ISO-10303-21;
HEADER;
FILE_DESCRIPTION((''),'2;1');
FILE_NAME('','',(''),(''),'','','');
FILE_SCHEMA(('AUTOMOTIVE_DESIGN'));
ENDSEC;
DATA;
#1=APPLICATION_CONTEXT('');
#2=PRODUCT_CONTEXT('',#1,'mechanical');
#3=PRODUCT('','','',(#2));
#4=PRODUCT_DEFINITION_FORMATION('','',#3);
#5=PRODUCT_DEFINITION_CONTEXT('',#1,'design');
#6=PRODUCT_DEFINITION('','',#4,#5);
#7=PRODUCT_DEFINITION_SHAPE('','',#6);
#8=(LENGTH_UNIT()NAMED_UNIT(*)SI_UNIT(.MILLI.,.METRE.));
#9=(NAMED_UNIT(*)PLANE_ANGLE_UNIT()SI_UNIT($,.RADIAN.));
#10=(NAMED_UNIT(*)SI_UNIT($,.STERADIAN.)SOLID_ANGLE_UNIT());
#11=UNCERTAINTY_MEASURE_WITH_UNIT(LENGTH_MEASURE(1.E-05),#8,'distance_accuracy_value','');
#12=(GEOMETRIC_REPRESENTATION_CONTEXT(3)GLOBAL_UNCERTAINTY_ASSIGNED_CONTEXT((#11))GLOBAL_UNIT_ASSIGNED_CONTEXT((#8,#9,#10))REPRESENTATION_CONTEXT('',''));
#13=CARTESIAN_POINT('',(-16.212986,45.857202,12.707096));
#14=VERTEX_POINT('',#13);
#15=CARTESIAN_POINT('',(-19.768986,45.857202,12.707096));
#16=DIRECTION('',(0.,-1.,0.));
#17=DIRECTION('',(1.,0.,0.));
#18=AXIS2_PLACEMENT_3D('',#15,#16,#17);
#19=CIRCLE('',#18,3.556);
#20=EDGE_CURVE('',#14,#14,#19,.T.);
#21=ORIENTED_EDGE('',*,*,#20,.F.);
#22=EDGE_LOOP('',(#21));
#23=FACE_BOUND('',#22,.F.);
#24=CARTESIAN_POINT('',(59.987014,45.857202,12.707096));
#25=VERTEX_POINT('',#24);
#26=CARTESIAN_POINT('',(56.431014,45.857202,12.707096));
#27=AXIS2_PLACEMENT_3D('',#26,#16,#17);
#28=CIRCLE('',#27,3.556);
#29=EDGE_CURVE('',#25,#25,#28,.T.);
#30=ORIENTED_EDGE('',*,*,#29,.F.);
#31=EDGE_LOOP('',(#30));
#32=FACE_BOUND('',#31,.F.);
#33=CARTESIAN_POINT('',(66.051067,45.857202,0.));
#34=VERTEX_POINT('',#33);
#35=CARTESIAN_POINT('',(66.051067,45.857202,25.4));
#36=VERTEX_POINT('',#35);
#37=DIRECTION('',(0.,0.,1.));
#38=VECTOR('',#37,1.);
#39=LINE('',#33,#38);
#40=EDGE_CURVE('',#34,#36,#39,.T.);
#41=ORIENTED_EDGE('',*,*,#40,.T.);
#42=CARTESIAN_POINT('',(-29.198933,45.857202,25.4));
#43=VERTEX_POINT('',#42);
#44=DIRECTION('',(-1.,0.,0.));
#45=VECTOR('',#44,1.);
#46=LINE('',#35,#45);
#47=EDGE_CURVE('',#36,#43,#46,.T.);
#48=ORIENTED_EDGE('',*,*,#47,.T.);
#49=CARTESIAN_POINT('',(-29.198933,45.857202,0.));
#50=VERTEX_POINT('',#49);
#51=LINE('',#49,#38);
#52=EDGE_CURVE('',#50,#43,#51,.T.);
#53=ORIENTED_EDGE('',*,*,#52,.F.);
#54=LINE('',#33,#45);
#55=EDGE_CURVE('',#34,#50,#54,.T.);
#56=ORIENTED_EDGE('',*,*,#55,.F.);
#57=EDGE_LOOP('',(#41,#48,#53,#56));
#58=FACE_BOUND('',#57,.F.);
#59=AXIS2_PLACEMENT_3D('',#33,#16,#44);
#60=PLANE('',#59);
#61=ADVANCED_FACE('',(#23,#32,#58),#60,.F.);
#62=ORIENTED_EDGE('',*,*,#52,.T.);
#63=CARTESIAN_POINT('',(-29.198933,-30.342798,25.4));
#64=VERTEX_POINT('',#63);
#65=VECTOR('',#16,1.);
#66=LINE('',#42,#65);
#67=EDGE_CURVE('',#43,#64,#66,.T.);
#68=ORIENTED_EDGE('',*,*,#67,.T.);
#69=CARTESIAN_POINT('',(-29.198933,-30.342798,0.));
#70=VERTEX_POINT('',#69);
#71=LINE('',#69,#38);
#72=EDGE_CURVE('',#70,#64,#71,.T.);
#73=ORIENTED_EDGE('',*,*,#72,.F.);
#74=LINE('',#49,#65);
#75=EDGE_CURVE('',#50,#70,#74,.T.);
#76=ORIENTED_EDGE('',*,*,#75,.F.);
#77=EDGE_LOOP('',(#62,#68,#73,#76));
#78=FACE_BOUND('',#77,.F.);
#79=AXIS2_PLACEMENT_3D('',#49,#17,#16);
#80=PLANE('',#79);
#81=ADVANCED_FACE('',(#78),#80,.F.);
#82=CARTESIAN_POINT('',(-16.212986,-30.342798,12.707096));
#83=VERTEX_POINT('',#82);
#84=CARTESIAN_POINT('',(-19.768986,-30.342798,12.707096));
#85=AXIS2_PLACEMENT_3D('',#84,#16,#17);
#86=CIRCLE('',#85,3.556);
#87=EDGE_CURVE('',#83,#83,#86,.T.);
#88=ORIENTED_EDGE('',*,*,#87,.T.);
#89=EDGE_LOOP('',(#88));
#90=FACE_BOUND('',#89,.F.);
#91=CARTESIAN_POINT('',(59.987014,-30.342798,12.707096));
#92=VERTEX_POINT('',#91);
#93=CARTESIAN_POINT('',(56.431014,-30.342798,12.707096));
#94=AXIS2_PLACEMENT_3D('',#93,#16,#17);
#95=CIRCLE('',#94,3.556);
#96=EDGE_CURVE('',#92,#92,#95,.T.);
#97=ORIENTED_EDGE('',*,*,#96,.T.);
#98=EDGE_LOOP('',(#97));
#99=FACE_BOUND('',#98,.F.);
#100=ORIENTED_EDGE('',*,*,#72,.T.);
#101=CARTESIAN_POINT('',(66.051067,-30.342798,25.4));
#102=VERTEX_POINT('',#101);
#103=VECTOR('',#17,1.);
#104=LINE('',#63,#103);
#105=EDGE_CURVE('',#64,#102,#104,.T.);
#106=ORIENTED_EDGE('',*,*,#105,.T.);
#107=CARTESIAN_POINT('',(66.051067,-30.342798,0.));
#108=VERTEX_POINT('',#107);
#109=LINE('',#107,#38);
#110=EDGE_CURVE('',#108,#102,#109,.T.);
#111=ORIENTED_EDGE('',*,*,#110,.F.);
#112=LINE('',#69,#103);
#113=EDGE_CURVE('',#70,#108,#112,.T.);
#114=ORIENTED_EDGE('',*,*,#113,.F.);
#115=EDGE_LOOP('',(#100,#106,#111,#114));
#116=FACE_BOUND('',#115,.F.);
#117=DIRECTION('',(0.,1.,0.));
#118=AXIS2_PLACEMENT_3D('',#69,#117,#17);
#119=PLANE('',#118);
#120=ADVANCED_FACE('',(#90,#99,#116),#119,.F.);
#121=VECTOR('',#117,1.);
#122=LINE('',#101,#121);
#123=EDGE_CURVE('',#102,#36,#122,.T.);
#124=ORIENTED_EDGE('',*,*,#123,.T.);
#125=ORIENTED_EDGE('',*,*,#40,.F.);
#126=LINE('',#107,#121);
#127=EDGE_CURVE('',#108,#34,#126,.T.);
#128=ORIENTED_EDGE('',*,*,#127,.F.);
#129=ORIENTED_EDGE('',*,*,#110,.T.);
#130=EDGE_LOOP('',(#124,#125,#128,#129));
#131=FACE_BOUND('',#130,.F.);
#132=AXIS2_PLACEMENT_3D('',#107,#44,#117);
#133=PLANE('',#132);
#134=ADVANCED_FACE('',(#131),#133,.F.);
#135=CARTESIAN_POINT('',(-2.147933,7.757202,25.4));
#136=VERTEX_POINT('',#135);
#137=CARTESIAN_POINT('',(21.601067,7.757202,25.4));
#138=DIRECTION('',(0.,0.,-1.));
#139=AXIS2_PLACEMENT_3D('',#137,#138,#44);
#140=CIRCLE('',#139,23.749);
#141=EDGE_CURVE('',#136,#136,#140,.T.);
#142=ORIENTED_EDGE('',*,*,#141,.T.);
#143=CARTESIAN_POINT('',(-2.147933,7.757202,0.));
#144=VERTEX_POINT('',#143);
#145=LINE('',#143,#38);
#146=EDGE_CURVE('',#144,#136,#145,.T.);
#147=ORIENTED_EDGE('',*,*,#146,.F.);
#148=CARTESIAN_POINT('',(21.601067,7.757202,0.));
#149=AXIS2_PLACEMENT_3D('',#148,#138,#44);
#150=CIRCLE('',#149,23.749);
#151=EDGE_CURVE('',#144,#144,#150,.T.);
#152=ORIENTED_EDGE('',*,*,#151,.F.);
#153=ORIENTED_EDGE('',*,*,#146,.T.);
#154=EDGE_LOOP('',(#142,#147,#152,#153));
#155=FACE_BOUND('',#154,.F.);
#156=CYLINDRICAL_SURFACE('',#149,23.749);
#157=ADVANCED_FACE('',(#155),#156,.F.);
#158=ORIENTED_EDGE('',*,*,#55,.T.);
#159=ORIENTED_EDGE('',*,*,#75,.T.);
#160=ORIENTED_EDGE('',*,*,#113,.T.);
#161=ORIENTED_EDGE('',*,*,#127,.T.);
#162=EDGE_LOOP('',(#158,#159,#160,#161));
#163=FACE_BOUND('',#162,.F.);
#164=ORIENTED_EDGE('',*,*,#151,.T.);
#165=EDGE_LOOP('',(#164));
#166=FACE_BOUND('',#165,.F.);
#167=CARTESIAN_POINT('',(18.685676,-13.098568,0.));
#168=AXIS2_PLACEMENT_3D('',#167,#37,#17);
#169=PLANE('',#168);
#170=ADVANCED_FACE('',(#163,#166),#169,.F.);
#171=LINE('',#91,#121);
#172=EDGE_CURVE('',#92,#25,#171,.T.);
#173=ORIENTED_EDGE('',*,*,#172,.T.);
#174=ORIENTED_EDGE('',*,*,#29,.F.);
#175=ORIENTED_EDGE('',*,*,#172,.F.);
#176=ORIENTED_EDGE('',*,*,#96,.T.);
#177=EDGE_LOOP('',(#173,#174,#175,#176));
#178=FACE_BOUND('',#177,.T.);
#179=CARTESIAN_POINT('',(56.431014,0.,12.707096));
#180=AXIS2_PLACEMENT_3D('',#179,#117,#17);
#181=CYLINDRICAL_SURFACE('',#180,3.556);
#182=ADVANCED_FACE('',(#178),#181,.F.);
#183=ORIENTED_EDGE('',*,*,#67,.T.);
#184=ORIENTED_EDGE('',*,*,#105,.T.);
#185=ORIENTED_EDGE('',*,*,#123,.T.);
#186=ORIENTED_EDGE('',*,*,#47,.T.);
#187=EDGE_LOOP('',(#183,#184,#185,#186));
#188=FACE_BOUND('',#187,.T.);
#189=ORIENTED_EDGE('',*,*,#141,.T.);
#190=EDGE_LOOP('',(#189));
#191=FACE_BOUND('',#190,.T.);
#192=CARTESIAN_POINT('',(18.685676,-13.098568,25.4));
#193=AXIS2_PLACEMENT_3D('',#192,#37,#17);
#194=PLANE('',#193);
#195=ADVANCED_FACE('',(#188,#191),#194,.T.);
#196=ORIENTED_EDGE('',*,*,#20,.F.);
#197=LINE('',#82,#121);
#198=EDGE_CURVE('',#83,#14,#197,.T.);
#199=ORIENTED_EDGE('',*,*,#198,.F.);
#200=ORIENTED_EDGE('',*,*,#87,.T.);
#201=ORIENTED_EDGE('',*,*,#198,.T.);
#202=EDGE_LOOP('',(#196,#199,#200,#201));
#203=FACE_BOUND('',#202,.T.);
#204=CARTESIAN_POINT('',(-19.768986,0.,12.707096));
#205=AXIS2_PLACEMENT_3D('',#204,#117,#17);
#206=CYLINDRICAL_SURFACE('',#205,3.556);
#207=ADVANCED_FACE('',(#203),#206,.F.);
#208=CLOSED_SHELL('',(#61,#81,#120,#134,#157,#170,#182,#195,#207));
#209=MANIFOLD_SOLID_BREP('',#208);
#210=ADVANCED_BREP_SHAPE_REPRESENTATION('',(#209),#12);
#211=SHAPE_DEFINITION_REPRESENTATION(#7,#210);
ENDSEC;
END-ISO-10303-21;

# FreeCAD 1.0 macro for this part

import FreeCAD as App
import Part
import Sketcher
Q = App.Units.Quantity

doc = App.newDocument("Part")
body = doc.addObject("PartDesign::Body", "Body")

sketch1 = body.newObject("Sketcher::SketchObject", "Sketch")
sketch1.AttachmentSupport = (doc.getObject("XY_Plane"), [""])
sketch1.MapMode = "FlatFace"
sketch1.addGeometry([
    Part.LineSegment(App.Vector(-29, -30, 0), App.Vector(66, -30, 0)),
    Part.LineSegment(App.Vector(66, -30, 0), App.Vector(66, 46, 0)),
    Part.LineSegment(App.Vector(66, 46, 0), App.Vector(-29, 46, 0)),
    Part.LineSegment(App.Vector(-29, 46, 0), App.Vector(-29, -30, 0)),
    Part.Circle(App.Vector(22, 8, 0), App.Vector(0, 0, 1), 24),
], False)
sketch1.addConstraint([
    Sketcher.Constraint("Coincident", 0, 2, 1, 1),
    Sketcher.Constraint("Coincident", 1, 2, 2, 1),
    Sketcher.Constraint("Coincident", 2, 2, 3, 1),
    Sketcher.Constraint("Coincident", 3, 2, 0, 1),
    Sketcher.Constraint("Horizontal", 0),
    Sketcher.Constraint("Vertical", 1),
    Sketcher.Constraint("Horizontal", 2),
    Sketcher.Constraint("Vertical", 3),
    Sketcher.Constraint("Diameter", 4, Q("1.87 in")),
    Sketcher.Constraint("DistanceY", 1, 1, 1, 2, Q("3 in")),
    Sketcher.Constraint("DistanceX", 2, 2, 4, 3, Q("2 in")),
    Sketcher.Constraint("DistanceX", 0, 1, 0, 2, Q("3.75 in")),
    Sketcher.Constraint("DistanceY", 0, 2, 4, 3, Q("1.5 in")),
    Sketcher.Constraint("DistanceX", -1, 1, 4, 3, 21.601067),
    Sketcher.Constraint("DistanceY", -1, 1, 4, 3, 7.757202),
])
pad1 = body.newObject("PartDesign::Pad", "Pad")
pad1.Profile = sketch1
pad1.Length = Q("1 in")

sketch2 = body.newObject("Sketcher::SketchObject", "Sketch001")
sketch2.AttachmentSupport = (doc.getObject("XZ_Plane"), [""])
sketch2.MapMode = "FlatFace"
sketch2.addGeometry([
    Part.Circle(App.Vector(-19.8, 12.7, 0), App.Vector(0, 0, 1), 3.6),
    Part.Circle(App.Vector(56.4, 12.7, 0), App.Vector(0, 0, 1), 3.6),
], False)
sketch2.addConstraint([
    Sketcher.Constraint("Equal", 0, 1),
    Sketcher.Constraint("Horizontal", 0, 3, 1, 3),
    Sketcher.Constraint("Diameter", 0, Q("0.28 in")),
    Sketcher.Constraint("DistanceX", 0, 3, 1, 3, Q("3 in")),
    Sketcher.Constraint("DistanceX", 0, 3, -1, 1, 19.768986),
    Sketcher.Constraint("DistanceY", -1, 1, 0, 3, 12.707096),
])
pocket1 = body.newObject("PartDesign::Pocket", "Pocket")
pocket1.Profile = sketch2
pocket1.Type = "ThroughAll"
pocket1.Reversed = True

sketch3 = body.newObject("Sketcher::SketchObject", "Sketch002")
sketch3.AttachmentSupport = (doc.getObject("XZ_Plane"), [""])
sketch3.MapMode = "FlatFace"
sketch3.addGeometry([
    Part.Circle(App.Vector(-19.8, 12.7, 0), App.Vector(0, 0, 1), 3.6),
    Part.Circle(App.Vector(56.4, 12.7, 0), App.Vector(0, 0, 1), 3.6),
], False)
sketch3.addConstraint([
    Sketcher.Constraint("Equal", 0, 1),
    Sketcher.Constraint("Horizontal", 0, 3, 1, 3),
    Sketcher.Constraint("Diameter", 0, Q("0.28 in")),
    Sketcher.Constraint("DistanceX", 0, 3, 1, 3, Q("3 in")),
    Sketcher.Constraint("DistanceX", 0, 3, -1, 1, 19.768986),
    Sketcher.Constraint("DistanceY", -1, 1, 0, 3, 12.707096),
])
pocket2 = body.newObject("PartDesign::Pocket", "Pocket001")
pocket2.Profile = sketch3
pocket2.Type = "ThroughAll"

doc.recompute()
